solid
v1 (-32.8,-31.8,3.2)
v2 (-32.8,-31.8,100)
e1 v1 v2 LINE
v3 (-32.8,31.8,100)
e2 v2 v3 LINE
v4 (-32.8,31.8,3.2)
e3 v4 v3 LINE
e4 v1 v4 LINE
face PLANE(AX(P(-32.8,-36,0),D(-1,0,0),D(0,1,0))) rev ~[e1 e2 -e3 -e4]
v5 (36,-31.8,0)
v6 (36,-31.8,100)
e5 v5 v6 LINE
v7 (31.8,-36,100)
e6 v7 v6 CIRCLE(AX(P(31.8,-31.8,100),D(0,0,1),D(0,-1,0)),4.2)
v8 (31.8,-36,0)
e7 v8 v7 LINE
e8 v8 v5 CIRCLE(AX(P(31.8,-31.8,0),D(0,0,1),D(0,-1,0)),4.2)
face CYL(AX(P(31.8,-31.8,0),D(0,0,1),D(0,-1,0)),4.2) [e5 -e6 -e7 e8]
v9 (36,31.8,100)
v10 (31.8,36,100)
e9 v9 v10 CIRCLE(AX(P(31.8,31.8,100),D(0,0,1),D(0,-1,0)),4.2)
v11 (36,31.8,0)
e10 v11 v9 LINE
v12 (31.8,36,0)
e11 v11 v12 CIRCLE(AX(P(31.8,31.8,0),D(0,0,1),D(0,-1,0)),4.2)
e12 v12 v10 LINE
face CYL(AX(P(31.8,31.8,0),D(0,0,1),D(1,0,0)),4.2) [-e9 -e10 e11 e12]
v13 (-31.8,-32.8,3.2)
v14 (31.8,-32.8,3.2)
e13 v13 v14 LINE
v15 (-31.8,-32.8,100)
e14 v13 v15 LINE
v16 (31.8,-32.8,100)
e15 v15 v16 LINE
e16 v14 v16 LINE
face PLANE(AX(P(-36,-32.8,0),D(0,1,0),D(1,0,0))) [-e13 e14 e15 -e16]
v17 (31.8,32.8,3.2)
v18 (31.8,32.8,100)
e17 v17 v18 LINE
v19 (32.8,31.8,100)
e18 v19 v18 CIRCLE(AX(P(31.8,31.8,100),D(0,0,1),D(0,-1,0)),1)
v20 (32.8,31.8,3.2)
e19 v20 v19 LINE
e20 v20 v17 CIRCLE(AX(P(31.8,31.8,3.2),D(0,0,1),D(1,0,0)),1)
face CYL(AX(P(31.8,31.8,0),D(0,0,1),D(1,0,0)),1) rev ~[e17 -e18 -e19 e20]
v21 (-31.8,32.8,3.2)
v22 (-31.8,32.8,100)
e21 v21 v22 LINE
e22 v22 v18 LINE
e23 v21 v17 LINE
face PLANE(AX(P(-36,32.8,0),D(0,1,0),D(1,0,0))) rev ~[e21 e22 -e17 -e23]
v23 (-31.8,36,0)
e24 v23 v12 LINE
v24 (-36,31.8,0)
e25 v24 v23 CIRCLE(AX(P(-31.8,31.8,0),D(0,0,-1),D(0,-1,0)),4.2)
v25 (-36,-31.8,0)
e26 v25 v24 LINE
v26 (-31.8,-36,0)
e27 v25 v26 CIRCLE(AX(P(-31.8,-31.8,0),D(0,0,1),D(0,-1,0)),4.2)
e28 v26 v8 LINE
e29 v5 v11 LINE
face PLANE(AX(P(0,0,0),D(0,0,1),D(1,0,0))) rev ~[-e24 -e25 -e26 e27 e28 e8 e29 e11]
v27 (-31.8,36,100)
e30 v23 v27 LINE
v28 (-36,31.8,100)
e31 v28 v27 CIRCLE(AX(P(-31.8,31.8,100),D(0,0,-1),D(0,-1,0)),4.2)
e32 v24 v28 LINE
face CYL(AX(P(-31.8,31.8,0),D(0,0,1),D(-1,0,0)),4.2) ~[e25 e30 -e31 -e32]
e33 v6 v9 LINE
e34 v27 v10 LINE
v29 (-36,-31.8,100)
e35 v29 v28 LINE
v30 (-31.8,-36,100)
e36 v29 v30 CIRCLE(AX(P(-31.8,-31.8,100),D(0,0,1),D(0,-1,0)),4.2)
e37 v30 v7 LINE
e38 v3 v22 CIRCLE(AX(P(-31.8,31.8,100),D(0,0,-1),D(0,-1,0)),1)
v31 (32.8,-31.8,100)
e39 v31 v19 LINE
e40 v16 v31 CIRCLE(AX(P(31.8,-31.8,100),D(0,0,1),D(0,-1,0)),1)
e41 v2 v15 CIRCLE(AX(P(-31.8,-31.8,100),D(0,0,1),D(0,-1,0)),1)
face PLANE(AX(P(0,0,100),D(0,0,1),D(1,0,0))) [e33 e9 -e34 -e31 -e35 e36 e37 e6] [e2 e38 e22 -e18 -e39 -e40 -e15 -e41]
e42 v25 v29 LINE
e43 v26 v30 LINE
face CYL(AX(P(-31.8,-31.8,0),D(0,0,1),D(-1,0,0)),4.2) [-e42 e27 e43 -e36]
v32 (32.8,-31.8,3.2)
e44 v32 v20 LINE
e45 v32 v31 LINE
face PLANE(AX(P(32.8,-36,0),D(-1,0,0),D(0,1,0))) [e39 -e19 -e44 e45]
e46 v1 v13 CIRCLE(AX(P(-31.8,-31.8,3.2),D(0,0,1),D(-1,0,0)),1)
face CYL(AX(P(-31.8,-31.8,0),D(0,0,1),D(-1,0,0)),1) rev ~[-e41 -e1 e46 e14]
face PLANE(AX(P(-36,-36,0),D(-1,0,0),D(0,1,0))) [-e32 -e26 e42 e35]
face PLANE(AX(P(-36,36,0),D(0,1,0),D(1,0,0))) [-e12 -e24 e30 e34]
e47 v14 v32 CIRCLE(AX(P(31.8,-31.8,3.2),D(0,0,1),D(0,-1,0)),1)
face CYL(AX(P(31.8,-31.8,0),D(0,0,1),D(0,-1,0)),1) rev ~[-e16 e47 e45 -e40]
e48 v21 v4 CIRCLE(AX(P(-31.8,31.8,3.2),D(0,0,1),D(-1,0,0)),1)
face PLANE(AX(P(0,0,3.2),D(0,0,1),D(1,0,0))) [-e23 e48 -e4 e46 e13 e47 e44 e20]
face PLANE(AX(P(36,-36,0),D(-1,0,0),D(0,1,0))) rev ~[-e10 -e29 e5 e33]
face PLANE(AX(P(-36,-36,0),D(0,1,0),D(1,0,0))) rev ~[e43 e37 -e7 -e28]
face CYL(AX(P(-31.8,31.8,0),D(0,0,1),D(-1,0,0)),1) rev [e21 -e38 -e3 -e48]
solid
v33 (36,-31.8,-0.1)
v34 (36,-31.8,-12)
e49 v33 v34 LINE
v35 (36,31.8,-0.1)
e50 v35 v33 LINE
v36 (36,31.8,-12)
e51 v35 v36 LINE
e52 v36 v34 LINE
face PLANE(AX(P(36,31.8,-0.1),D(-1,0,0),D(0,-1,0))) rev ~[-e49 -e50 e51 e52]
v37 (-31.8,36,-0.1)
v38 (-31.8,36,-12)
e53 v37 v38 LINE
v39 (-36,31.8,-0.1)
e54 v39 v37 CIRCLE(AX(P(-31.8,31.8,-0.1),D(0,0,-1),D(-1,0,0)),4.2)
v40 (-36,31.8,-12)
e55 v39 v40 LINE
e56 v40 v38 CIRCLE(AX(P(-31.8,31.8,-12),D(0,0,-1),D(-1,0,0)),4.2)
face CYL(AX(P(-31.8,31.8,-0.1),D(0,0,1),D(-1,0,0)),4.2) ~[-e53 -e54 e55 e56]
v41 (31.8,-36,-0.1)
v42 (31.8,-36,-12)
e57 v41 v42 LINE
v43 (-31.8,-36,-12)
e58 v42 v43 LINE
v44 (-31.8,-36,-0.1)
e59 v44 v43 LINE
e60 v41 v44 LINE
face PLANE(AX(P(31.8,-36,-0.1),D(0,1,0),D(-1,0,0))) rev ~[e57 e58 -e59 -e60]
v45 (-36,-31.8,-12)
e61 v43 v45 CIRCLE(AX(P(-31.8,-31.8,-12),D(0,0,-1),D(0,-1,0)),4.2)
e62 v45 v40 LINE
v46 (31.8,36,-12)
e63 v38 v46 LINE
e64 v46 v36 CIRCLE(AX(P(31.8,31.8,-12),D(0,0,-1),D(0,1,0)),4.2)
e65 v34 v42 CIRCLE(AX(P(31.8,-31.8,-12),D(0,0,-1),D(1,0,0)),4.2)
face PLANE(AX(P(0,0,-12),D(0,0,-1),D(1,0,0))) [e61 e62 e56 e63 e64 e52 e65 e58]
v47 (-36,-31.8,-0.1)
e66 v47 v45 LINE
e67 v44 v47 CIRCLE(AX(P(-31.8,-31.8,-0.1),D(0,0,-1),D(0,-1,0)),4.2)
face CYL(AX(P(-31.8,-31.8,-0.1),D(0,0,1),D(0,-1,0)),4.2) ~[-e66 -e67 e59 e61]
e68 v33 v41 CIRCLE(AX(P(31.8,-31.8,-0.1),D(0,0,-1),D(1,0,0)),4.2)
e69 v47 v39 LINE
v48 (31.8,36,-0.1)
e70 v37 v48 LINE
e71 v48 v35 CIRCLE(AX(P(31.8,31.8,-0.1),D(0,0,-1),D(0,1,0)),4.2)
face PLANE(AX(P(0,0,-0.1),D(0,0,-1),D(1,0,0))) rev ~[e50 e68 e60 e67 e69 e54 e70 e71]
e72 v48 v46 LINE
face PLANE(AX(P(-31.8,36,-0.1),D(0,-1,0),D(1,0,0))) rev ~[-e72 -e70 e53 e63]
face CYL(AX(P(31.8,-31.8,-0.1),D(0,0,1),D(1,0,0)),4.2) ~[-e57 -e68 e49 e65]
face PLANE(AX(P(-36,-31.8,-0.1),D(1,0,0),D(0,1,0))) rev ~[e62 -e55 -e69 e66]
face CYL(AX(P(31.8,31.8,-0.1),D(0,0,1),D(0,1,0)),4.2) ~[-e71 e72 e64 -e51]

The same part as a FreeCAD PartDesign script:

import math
import FreeCAD as App
import Part
import Sketcher

V = App.Vector
Q = App.Units.Quantity


def edges_at(feature, points):
    """Names of the edges that pass closest to the given points."""
    edges = feature.Shape.Edges
    near = lambda p: min(range(len(edges)), key=lambda i: edges[i].distToShape(Part.Vertex(*p))[0])
    return sorted({f"Edge{near(p) + 1}" for p in points})


def faces_at(feature, points):
    """Names of the faces that lie closest to the given points."""
    faces = feature.Shape.Faces
    near = lambda p: min(range(len(faces)), key=lambda i: faces[i].distToShape(Part.Vertex(*p))[0])
    return sorted({f"Face{near(p) + 1}" for p in points})


def add_polygon(sketch, points):
    """Adds a closed chain of lines whose ends are joined by coincident constraints."""
    first, n = sketch.GeometryCount, len(points)
    for a, b in zip(points, points[1:] + points[:1]):
        sketch.addGeometry(Part.LineSegment(App.Vector(*a, 0), App.Vector(*b, 0)), False)
    for i in range(n):
        sketch.addConstraint(Sketcher.Constraint("Coincident", first + i, 2, first + (i + 1) % n, 1))

doc = App.newDocument("Part")
body = doc.addObject("PartDesign::Body", "Body")

# Sketch on XY plane
sketch1 = body.newObject("Sketcher::SketchObject", "Sketch")
sketch1.AttachmentSupport = (doc.getObject("XY_Plane"), [""])
sketch1.MapMode = "FlatFace"
add_polygon(sketch1, [(-36, 36), (-36, -36), (36, -36), (36, 36)])  # lines 0-3
sketch1.addConstraint(Sketcher.Constraint("Vertical", 0))
sketch1.addConstraint(Sketcher.Constraint("Horizontal", 1))
sketch1.addConstraint(Sketcher.Constraint("Vertical", 2))
sketch1.addConstraint(Sketcher.Constraint("Horizontal", 3))
sketch1.addConstraint(Sketcher.Constraint("Symmetric", 0, 2, 2, 2, -1, 1))
sketch1.addConstraint(Sketcher.Constraint("Equal", 3, 0))
sketch1.addConstraint(Sketcher.Constraint("DistanceX", 1, 1, 1, 2, Q("72 mm")))
pad1 = body.newObject("PartDesign::Pad", "Pad")
pad1.Profile = sketch1
pad1.Length = 100
doc.recompute()

fillet = body.newObject("PartDesign::Fillet", "Fillet")
fillet.Base = (pad1, edges_at(pad1, [
    (-36, -36, 50),
    (36, -36, 50),
    (36, 36, 50),
    (-36, 36, 50),
]))
fillet.Radius = 4.2
doc.recompute()

thickness = body.newObject("PartDesign::Thickness", "Thickness")
thickness.Base = (fillet, faces_at(fillet, [(0, 0, 100)]))
thickness.Value = 3.2
thickness.Reversed = True
thickness.Join = "Arc"
body2 = doc.addObject("PartDesign::Body", "Body001")

# Sketch on XY plane
sketch2 = body2.newObject("Sketcher::SketchObject", "Sketch001")
sketch2.AttachmentSupport = (doc.getObject("XY_Plane001"), [""])
sketch2.MapMode = "FlatFace"
sketch2.AttachmentOffset = App.Placement(V(0, 0, -0.1), App.Rotation())
sketch2.addGeometry(Part.ArcOfCircle(Part.Circle(V(31.8, 31.8, 0), V(0, 0, 1), 4.2), math.radians(0), math.radians(90)), False)
sketch2.addGeometry(Part.LineSegment(V(36, 31.8, 0), V(36, -31.8, 0)), False)
sketch2.addGeometry(Part.ArcOfCircle(Part.Circle(V(31.8, -31.8, 0), V(0, 0, 1), 4.2), math.radians(-90), math.radians(0)), False)
sketch2.addGeometry(Part.LineSegment(V(31.8, -36, 0), V(-31.8, -36, 0)), False)
sketch2.addGeometry(Part.ArcOfCircle(Part.Circle(V(-31.8, -31.8, 0), V(0, 0, 1), 4.2), math.radians(180), math.radians(270)), False)
sketch2.addGeometry(Part.LineSegment(V(-36, -31.8, 0), V(-36, 31.8, 0)), False)
sketch2.addGeometry(Part.ArcOfCircle(Part.Circle(V(-31.8, 31.8, 0), V(0, 0, 1), 4.2), math.radians(90), math.radians(180)), False)
sketch2.addGeometry(Part.LineSegment(V(-31.8, 36, 0), V(31.8, 36, 0)), False)
sketch2.addConstraint(Sketcher.Constraint("Tangent", 0, 1, 1, 1))
sketch2.addConstraint(Sketcher.Constraint("Tangent", 1, 2, 2, 2))
sketch2.addConstraint(Sketcher.Constraint("Tangent", 2, 1, 3, 1))
sketch2.addConstraint(Sketcher.Constraint("Tangent", 3, 2, 4, 2))
sketch2.addConstraint(Sketcher.Constraint("Tangent", 4, 1, 5, 1))
sketch2.addConstraint(Sketcher.Constraint("Tangent", 5, 2, 6, 2))
sketch2.addConstraint(Sketcher.Constraint("Tangent", 6, 1, 7, 1))
sketch2.addConstraint(Sketcher.Constraint("Tangent", 7, 2, 0, 2))
sketch2.addConstraint(Sketcher.Constraint("Vertical", 1))
sketch2.addConstraint(Sketcher.Constraint("Horizontal", 3))
sketch2.addConstraint(Sketcher.Constraint("Vertical", 5))
sketch2.addConstraint(Sketcher.Constraint("Horizontal", 7))
sketch2.addConstraint(Sketcher.Constraint("Equal", 0, 2))
sketch2.addConstraint(Sketcher.Constraint("Equal", 2, 4))
sketch2.addConstraint(Sketcher.Constraint("Equal", 4, 6))
sketch2.addConstraint(Sketcher.Constraint("Symmetric", 0, 3, 4, 3, -1, 1))
sketch2.addConstraint(Sketcher.Constraint("Equal", 7, 1))
sketch2.addConstraint(Sketcher.Constraint("Radius", 0, Q("4.2 mm")))
sketch2.addConstraint(Sketcher.Constraint("DistanceX", 3, 2, 3, 1, Q("63.6 mm")))
pad2 = body2.newObject("PartDesign::Pad", "Pad001")
pad2.Profile = sketch2
pad2.Length = 11.9
pad2.Reversed = True

doc.recompute()
